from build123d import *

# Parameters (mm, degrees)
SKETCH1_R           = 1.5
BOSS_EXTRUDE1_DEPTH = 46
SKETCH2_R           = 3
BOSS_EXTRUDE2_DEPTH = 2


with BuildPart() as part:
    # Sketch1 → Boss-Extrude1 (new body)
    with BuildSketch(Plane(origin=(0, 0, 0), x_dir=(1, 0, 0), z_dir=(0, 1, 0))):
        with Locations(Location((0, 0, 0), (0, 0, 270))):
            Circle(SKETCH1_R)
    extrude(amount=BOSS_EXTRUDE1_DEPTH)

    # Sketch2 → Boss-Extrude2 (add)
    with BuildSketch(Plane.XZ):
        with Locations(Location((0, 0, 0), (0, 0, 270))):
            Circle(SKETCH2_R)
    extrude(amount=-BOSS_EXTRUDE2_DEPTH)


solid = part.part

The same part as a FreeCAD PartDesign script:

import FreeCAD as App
import Part
import Sketcher

V = App.Vector
Q = App.Units.Quantity

doc = App.newDocument("Part")
body = doc.addObject("PartDesign::Body", "Body")

# Sketch on XZ plane
sketch1 = body.newObject("Sketcher::SketchObject", "Sketch")
sketch1.AttachmentSupport = (doc.getObject("XZ_Plane"), [""])
sketch1.MapMode = "FlatFace"
sketch1.addGeometry(Part.Circle(V(0, 0, 0), V(0, 0, 1), 1.5), False)
sketch1.addConstraint([
    Sketcher.Constraint("Coincident", 0, 3, -1, 1),
    Sketcher.Constraint("Diameter", 0, Q("3 mm")),
])
pad1 = body.newObject("PartDesign::Pad", "Pad")
pad1.Profile = sketch1
pad1.Length = 46
pad1.Reversed = True

# Sketch on XZ plane
sketch2 = body.newObject("Sketcher::SketchObject", "Sketch001")
sketch2.AttachmentSupport = (doc.getObject("XZ_Plane"), [""])
sketch2.MapMode = "FlatFace"
sketch2.addGeometry(Part.Circle(V(0, 0, 0), V(0, 0, 1), 3), False)
sketch2.addConstraint([
    Sketcher.Constraint("Coincident", 0, 3, -1, 1),
    Sketcher.Constraint("Diameter", 0, Q("6 mm")),
])
pad2 = body.newObject("PartDesign::Pad", "Pad001")
pad2.Profile = sketch2
pad2.Length = 2
pad2.Reversed = True

doc.recompute()
